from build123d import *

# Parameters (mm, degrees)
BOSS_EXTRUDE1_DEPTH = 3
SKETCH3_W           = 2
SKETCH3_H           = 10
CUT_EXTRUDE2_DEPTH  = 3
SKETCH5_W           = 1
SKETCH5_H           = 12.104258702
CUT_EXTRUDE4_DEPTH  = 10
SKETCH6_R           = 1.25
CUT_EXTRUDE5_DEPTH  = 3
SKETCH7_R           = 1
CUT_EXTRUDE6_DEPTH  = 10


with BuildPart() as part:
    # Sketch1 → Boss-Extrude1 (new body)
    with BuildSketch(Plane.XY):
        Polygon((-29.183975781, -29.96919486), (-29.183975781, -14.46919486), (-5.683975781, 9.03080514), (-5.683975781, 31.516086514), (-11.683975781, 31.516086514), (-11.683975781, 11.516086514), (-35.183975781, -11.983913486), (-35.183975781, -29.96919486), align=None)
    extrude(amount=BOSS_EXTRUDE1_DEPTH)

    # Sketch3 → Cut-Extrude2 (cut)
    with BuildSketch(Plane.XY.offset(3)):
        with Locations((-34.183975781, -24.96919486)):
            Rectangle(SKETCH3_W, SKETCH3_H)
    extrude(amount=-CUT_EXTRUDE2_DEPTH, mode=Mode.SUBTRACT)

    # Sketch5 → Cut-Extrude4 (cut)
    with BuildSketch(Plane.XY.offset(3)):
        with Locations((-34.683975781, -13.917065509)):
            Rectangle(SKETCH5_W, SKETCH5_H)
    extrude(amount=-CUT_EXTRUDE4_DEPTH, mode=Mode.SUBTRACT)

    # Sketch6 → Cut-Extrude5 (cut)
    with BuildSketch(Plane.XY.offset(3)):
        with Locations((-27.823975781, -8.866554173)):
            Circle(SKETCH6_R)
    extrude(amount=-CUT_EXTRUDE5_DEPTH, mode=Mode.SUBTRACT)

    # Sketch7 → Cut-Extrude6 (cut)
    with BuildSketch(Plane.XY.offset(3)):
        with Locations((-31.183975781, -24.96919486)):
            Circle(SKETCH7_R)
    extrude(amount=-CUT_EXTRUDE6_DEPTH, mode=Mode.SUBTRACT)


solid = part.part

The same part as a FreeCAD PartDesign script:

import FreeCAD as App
import Part
import Sketcher

V = App.Vector
Q = App.Units.Quantity

doc = App.newDocument("Part")
body = doc.addObject("PartDesign::Body", "Body")

sketch1 = body.newObject("Sketcher::SketchObject", "Sketch")
sketch1.AttachmentSupport = (doc.getObject("XY_Plane"), [""])
sketch1.MapMode = "FlatFace"
sketch1.addGeometry([
    Part.LineSegment(V(-29, -30, 0), V(-29, -14, 0)),
    Part.LineSegment(V(-29, -14, 0), V(-6, 9, 0)),
    Part.LineSegment(V(-6, 9, 0), V(-6, 32, 0)),
    Part.LineSegment(V(-6, 32, 0), V(-12, 32, 0)),
    Part.LineSegment(V(-12, 32, 0), V(-12, 12, 0)),
    Part.LineSegment(V(-12, 12, 0), V(-35, -12, 0)),
    Part.LineSegment(V(-35, -12, 0), V(-35, -30, 0)),
    Part.LineSegment(V(-35, -30, 0), V(-29, -30, 0)),
], False)
sketch1.addConstraint([
    Sketcher.Constraint("Coincident", 0, 2, 1, 1),
    Sketcher.Constraint("Coincident", 1, 2, 2, 1),
    Sketcher.Constraint("Coincident", 2, 2, 3, 1),
    Sketcher.Constraint("Coincident", 3, 2, 4, 1),
    Sketcher.Constraint("Coincident", 4, 2, 5, 1),
    Sketcher.Constraint("Coincident", 5, 2, 6, 1),
    Sketcher.Constraint("Coincident", 6, 2, 7, 1),
    Sketcher.Constraint("Coincident", 7, 2, 0, 1),
    Sketcher.Constraint("Vertical", 0),
    Sketcher.Constraint("Vertical", 2),
    Sketcher.Constraint("Horizontal", 3),
    Sketcher.Constraint("Vertical", 4),
    Sketcher.Constraint("Vertical", 6),
    Sketcher.Constraint("Horizontal", 7),
    Sketcher.Constraint("Parallel", 1, 5),
    Sketcher.Constraint("Equal", 3, 7),
    Sketcher.Constraint("DistanceX", 3, 2, 3, 1, 6.0),
    Sketcher.Constraint("DistanceY", 4, 2, 4, 1, 20.0),
    Sketcher.Constraint("Angle", 1, Q("45 deg")),
    Sketcher.Constraint("DistanceY", 0, 1, 0, 2, 15.5),
    Sketcher.Constraint("DistanceY", 6, 2, 1, 2, 39.0),
    Sketcher.Constraint("DistanceY", 2, 1, 2, 2, 22.485281),
    Sketcher.Constraint("DistanceX", 0, 2, -1, 1, 29.183976),
    Sketcher.Constraint("DistanceY", 0, 2, -1, 1, 14.469195),
])
pad1 = body.newObject("PartDesign::Pad", "Pad")
pad1.Profile = sketch1
pad1.Length = 3

sketch2 = body.newObject("Sketcher::SketchObject", "Sketch001")
sketch2.AttachmentSupport = (doc.getObject("XY_Plane"), [""])
sketch2.MapMode = "FlatFace"
sketch2.AttachmentOffset = App.Placement(V(0, 0, 3), App.Rotation())
sketch2.addGeometry([
    Part.LineSegment(V(-35.2, -20, 0), V(-35.2, -30, 0)),
    Part.LineSegment(V(-35.2, -30, 0), V(-33.2, -30, 0)),
    Part.LineSegment(V(-33.2, -30, 0), V(-33.2, -20, 0)),
    Part.LineSegment(V(-33.2, -20, 0), V(-35.2, -20, 0)),
], False)
sketch2.addConstraint([
    Sketcher.Constraint("Coincident", 0, 2, 1, 1),
    Sketcher.Constraint("Coincident", 1, 2, 2, 1),
    Sketcher.Constraint("Coincident", 2, 2, 3, 1),
    Sketcher.Constraint("Coincident", 3, 2, 0, 1),
    Sketcher.Constraint("Vertical", 0),
    Sketcher.Constraint("Horizontal", 1),
    Sketcher.Constraint("Vertical", 2),
    Sketcher.Constraint("Horizontal", 3),
    Sketcher.Constraint("DistanceX", 1, 1, 1, 2, 2.0),
    Sketcher.Constraint("DistanceY", 0, 2, 0, 1, 10.0),
    Sketcher.Constraint("DistanceX", 0, 2, -1, 1, 35.183976),
    Sketcher.Constraint("DistanceY", 0, 2, -1, 1, 29.969195),
])
pocket1 = body.newObject("PartDesign::Pocket", "Pocket")
pocket1.Profile = sketch2
pocket1.Length = 3

sketch3 = body.newObject("Sketcher::SketchObject", "Sketch002")
sketch3.AttachmentSupport = (doc.getObject("XY_Plane"), [""])
sketch3.MapMode = "FlatFace"
sketch3.AttachmentOffset = App.Placement(V(0, 0, 3), App.Rotation())
sketch3.addGeometry([
    Part.LineSegment(V(-35.2, -7.9, 0), V(-35.2, -20, 0)),
    Part.LineSegment(V(-35.2, -20, 0), V(-34.2, -20, 0)),
    Part.LineSegment(V(-34.2, -20, 0), V(-34.2, -7.9, 0)),
    Part.LineSegment(V(-34.2, -7.9, 0), V(-35.2, -7.9, 0)),
], False)
sketch3.addConstraint([
    Sketcher.Constraint("Coincident", 0, 2, 1, 1),
    Sketcher.Constraint("Coincident", 1, 2, 2, 1),
    Sketcher.Constraint("Coincident", 2, 2, 3, 1),
    Sketcher.Constraint("Coincident", 3, 2, 0, 1),
    Sketcher.Constraint("Vertical", 0),
    Sketcher.Constraint("Horizontal", 1),
    Sketcher.Constraint("Vertical", 2),
    Sketcher.Constraint("Horizontal", 3),
    Sketcher.Constraint("DistanceX", 1, 1, 1, 2, 1.0),
    Sketcher.Constraint("DistanceY", 0, 2, 0, 1, 12.104259),
    Sketcher.Constraint("DistanceX", 0, 2, -1, 1, 35.183976),
    Sketcher.Constraint("DistanceY", 0, 2, -1, 1, 19.969195),
])
pocket2 = body.newObject("PartDesign::Pocket", "Pocket001")
pocket2.Profile = sketch3
pocket2.Length = 10

sketch4 = body.newObject("Sketcher::SketchObject", "Sketch003")
sketch4.AttachmentSupport = (doc.getObject("XY_Plane"), [""])
sketch4.MapMode = "FlatFace"
sketch4.AttachmentOffset = App.Placement(V(0, 0, 3), App.Rotation())
sketch4.addGeometry(Part.Circle(V(-27.8, -8.9, 0), V(0, 0, 1), 1.2), False)
sketch4.addConstraint([
    Sketcher.Constraint("Diameter", 0, 2.5),
    Sketcher.Constraint("DistanceX", 0, 3, -1, 1, 27.823976),
    Sketcher.Constraint("DistanceY", 0, 3, -1, 1, 8.866554),
])
pocket3 = body.newObject("PartDesign::Pocket", "Pocket002")
pocket3.Profile = sketch4
pocket3.Length = 3

sketch5 = body.newObject("Sketcher::SketchObject", "Sketch004")
sketch5.AttachmentSupport = (doc.getObject("XY_Plane"), [""])
sketch5.MapMode = "FlatFace"
sketch5.AttachmentOffset = App.Placement(V(0, 0, 3), App.Rotation())
sketch5.addGeometry(Part.Circle(V(-31.2, -25, 0), V(0, 0, 1), 1), False)
sketch5.addConstraint([
    Sketcher.Constraint("Diameter", 0, 2.0),
    Sketcher.Constraint("DistanceX", 0, 3, -1, 1, 31.183976),
    Sketcher.Constraint("DistanceY", 0, 3, -1, 1, 24.969195),
])
pocket4 = body.newObject("PartDesign::Pocket", "Pocket003")
pocket4.Profile = sketch5
pocket4.Length = 10

doc.recompute()
